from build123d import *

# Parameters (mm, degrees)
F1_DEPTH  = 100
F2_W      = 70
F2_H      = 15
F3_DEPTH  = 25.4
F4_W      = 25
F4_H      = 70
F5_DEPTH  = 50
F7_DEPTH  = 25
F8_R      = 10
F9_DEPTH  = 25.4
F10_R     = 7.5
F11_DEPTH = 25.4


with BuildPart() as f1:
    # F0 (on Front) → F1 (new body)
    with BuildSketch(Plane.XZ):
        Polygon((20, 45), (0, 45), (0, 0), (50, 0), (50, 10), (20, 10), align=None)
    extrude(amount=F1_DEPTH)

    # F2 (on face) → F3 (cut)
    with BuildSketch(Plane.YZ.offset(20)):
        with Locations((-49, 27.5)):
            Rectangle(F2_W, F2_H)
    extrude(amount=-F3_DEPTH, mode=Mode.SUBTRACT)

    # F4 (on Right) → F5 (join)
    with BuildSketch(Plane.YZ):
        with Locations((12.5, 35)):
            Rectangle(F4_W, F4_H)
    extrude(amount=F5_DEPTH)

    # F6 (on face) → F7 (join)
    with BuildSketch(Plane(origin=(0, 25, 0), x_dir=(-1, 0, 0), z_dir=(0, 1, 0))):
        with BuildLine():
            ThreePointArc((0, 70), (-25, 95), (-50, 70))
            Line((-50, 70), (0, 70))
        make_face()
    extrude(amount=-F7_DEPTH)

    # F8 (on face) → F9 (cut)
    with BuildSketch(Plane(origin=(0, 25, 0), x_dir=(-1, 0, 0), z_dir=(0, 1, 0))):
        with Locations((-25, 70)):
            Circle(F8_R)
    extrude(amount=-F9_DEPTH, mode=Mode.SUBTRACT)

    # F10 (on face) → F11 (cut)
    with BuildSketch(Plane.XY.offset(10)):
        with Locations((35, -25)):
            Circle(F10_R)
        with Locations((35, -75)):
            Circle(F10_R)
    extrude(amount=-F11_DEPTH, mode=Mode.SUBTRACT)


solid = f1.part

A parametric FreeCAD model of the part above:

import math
import FreeCAD as App
import Part
import Sketcher

V = App.Vector
Q = App.Units.Quantity

doc = App.newDocument("Part")
params = doc.addObject("Spreadsheet::Sheet", "Params")
for row, (alias, value) in enumerate([
    ("sketch1_width", "20 mm"),
    ("sketch1_width2", "50 mm"),
    ("sketch1_height", "45 mm"),
    ("sketch1_height2", "10 mm"),
    ("pad1_length", "100 mm"),
    ("sketch2_width", "70 mm"),
    ("sketch2_height", "15 mm"),
    ("pocket1_length", "25.4 mm"),
    ("sketch3_width", "25 mm"),
    ("sketch3_height", "70 mm"),
    ("pad2_length", "50 mm"),
    ("sketch4_radius", "25 mm"),
    ("pad3_length", "25 mm"),
    ("sketch5_diameter", "20 mm"),
    ("pocket2_length", "25.4 mm"),
    ("sketch6_diameter", "15 mm"),
    ("pocket3_length", "25.4 mm"),
], start=1):
    params.set(f"A{row}", alias)
    params.set(f"B{row}", "=" + value)
    params.setAlias(f"B{row}", alias)

body = doc.addObject("PartDesign::Body", "Body")

# Sketch on XZ plane
sketch1 = body.newObject("Sketcher::SketchObject", "Sketch")
sketch1.AttachmentSupport = (doc.getObject("XZ_Plane"), [""])
sketch1.MapMode = "FlatFace"
sketch1.addGeometry(Part.LineSegment(V(20, 45, 0), V(0, 45, 0)), False)
sketch1.addGeometry(Part.LineSegment(V(0, 45, 0), V(0, 0, 0)), False)
sketch1.addGeometry(Part.LineSegment(V(0, 0, 0), V(50, 0, 0)), False)
sketch1.addGeometry(Part.LineSegment(V(50, 0, 0), V(50, 10, 0)), False)
sketch1.addGeometry(Part.LineSegment(V(50, 10, 0), V(20, 10, 0)), False)
sketch1.addGeometry(Part.LineSegment(V(20, 10, 0), V(20, 45, 0)), False)
sketch1.addConstraint(Sketcher.Constraint("Coincident", 0, 2, 1, 1))
sketch1.addConstraint(Sketcher.Constraint("Coincident", 1, 2, 2, 1))
sketch1.addConstraint(Sketcher.Constraint("Coincident", 2, 2, 3, 1))
sketch1.addConstraint(Sketcher.Constraint("Coincident", 3, 2, 4, 1))
sketch1.addConstraint(Sketcher.Constraint("Coincident", 4, 2, 5, 1))
sketch1.addConstraint(Sketcher.Constraint("Coincident", 5, 2, 0, 1))
sketch1.addConstraint(Sketcher.Constraint("Horizontal", 0))
sketch1.addConstraint(Sketcher.Constraint("Vertical", 1))
sketch1.addConstraint(Sketcher.Constraint("Horizontal", 2))
sketch1.addConstraint(Sketcher.Constraint("Vertical", 3))
sketch1.addConstraint(Sketcher.Constraint("Horizontal", 4))
sketch1.addConstraint(Sketcher.Constraint("Vertical", 5))
sketch1.addConstraint(Sketcher.Constraint("Coincident", 1, 2, -1, 1))
sketch1.addConstraint(Sketcher.Constraint("DistanceX", 0, 2, 0, 1, Q("20 mm")))
sketch1.addConstraint(Sketcher.Constraint("DistanceX", 2, 1, 2, 2, Q("50 mm")))
sketch1.addConstraint(Sketcher.Constraint("DistanceY", 1, 2, 1, 1, Q("45 mm")))
sketch1.addConstraint(Sketcher.Constraint("DistanceY", 3, 1, 3, 2, Q("10 mm")))
sketch1.setExpression("Constraints[13]", "Params.sketch1_width")
sketch1.setExpression("Constraints[14]", "Params.sketch1_width2")
sketch1.setExpression("Constraints[15]", "Params.sketch1_height")
sketch1.setExpression("Constraints[16]", "Params.sketch1_height2")
pad1 = body.newObject("PartDesign::Pad", "Pad")
pad1.Profile = sketch1
pad1.setExpression("Length", "Params.pad1_length")

# Sketch on YZ plane
sketch2 = body.newObject("Sketcher::SketchObject", "Sketch001")
sketch2.AttachmentSupport = (doc.getObject("YZ_Plane"), [""])
sketch2.MapMode = "FlatFace"
sketch2.AttachmentOffset = App.Placement(V(0, 0, 20), App.Rotation())
sketch2.addGeometry(Part.LineSegment(V(-84, 35, 0), V(-84, 20, 0)), False)
sketch2.addGeometry(Part.LineSegment(V(-84, 20, 0), V(-14, 20, 0)), False)
sketch2.addGeometry(Part.LineSegment(V(-14, 20, 0), V(-14, 35, 0)), False)
sketch2.addGeometry(Part.LineSegment(V(-14, 35, 0), V(-84, 35, 0)), False)
sketch2.addConstraint(Sketcher.Constraint("Coincident", 0, 2, 1, 1))
sketch2.addConstraint(Sketcher.Constraint("Coincident", 1, 2, 2, 1))
sketch2.addConstraint(Sketcher.Constraint("Coincident", 2, 2, 3, 1))
sketch2.addConstraint(Sketcher.Constraint("Coincident", 3, 2, 0, 1))
sketch2.addConstraint(Sketcher.Constraint("Vertical", 0))
sketch2.addConstraint(Sketcher.Constraint("Horizontal", 1))
sketch2.addConstraint(Sketcher.Constraint("Vertical", 2))
sketch2.addConstraint(Sketcher.Constraint("Horizontal", 3))
sketch2.addConstraint(Sketcher.Constraint("DistanceX", 1, 1, 1, 2, Q("70 mm")))
sketch2.addConstraint(Sketcher.Constraint("DistanceY", 0, 2, 0, 1, Q("15 mm")))
sketch2.addConstraint(Sketcher.Constraint("DistanceX", 0, 2, -1, 1, Q("84 mm")))
sketch2.addConstraint(Sketcher.Constraint("DistanceY", -1, 1, 0, 2, Q("20 mm")))
sketch2.setExpression("Constraints[8]", "Params.sketch2_width")
sketch2.setExpression("Constraints[9]", "Params.sketch2_height")
pocket1 = body.newObject("PartDesign::Pocket", "Pocket")
pocket1.Profile = sketch2
pocket1.setExpression("Length", "Params.pocket1_length")

# Sketch on YZ plane
sketch3 = body.newObject("Sketcher::SketchObject", "Sketch002")
sketch3.AttachmentSupport = (doc.getObject("YZ_Plane"), [""])
sketch3.MapMode = "FlatFace"
sketch3.addGeometry(Part.LineSegment(V(0, 70, 0), V(0, 0, 0)), False)
sketch3.addGeometry(Part.LineSegment(V(0, 0, 0), V(25, 0, 0)), False)
sketch3.addGeometry(Part.LineSegment(V(25, 0, 0), V(25, 70, 0)), False)
sketch3.addGeometry(Part.LineSegment(V(25, 70, 0), V(0, 70, 0)), False)
sketch3.addConstraint(Sketcher.Constraint("Coincident", 0, 2, 1, 1))
sketch3.addConstraint(Sketcher.Constraint("Coincident", 1, 2, 2, 1))
sketch3.addConstraint(Sketcher.Constraint("Coincident", 2, 2, 3, 1))
sketch3.addConstraint(Sketcher.Constraint("Coincident", 3, 2, 0, 1))
sketch3.addConstraint(Sketcher.Constraint("Vertical", 0))
sketch3.addConstraint(Sketcher.Constraint("Horizontal", 1))
sketch3.addConstraint(Sketcher.Constraint("Vertical", 2))
sketch3.addConstraint(Sketcher.Constraint("Horizontal", 3))
sketch3.addConstraint(Sketcher.Constraint("Coincident", 0, 2, -1, 1))
sketch3.addConstraint(Sketcher.Constraint("DistanceX", 1, 1, 1, 2, Q("25 mm")))
sketch3.addConstraint(Sketcher.Constraint("DistanceY", 0, 2, 0, 1, Q("70 mm")))
sketch3.setExpression("Constraints[9]", "Params.sketch3_width")
sketch3.setExpression("Constraints[10]", "Params.sketch3_height")
pad2 = body.newObject("PartDesign::Pad", "Pad001")
pad2.Profile = sketch3
pad2.setExpression("Length", "Params.pad2_length")

# Sketch on XZ plane
sketch4 = body.newObject("Sketcher::SketchObject", "Sketch003")
sketch4.AttachmentSupport = (doc.getObject("XZ_Plane"), [""])
sketch4.MapMode = "FlatFace"
sketch4.AttachmentOffset = App.Placement(V(0, 0, -25), App.Rotation())
sketch4.addGeometry(Part.ArcOfCircle(Part.Circle(V(25, 70, 0), V(0, 0, 1), 25), math.radians(0), math.radians(180)), False)
sketch4.addGeometry(Part.LineSegment(V(50, 70, 0), V(0, 70, 0)), False)
sketch4.addConstraint(Sketcher.Constraint("Coincident", 0, 1, 1, 1))
sketch4.addConstraint(Sketcher.Constraint("Coincident", 1, 2, 0, 2))
sketch4.addConstraint(Sketcher.Constraint("Horizontal", 1))
sketch4.addConstraint(Sketcher.Constraint("PointOnObject", 1, 2, -2))
sketch4.addConstraint(Sketcher.Constraint("Radius", 0, Q("25 mm")))
sketch4.addConstraint(Sketcher.Constraint("DistanceY", -1, 1, 0, 3, Q("70 mm")))
sketch4.addConstraint(Sketcher.Constraint("DistanceY", -1, 1, 0, 1, Q("70 mm")))
sketch4.setExpression("Constraints[4]", "Params.sketch4_radius")
pad3 = body.newObject("PartDesign::Pad", "Pad002")
pad3.Profile = sketch4
pad3.setExpression("Length", "Params.pad3_length")

# Sketch on XZ plane
sketch5 = body.newObject("Sketcher::SketchObject", "Sketch004")
sketch5.AttachmentSupport = (doc.getObject("XZ_Plane"), [""])
sketch5.MapMode = "FlatFace"
sketch5.AttachmentOffset = App.Placement(V(0, 0, -25), App.Rotation())
sketch5.addGeometry(Part.Circle(V(25, 70, 0), V(0, 0, 1), 10), False)
sketch5.addConstraint(Sketcher.Constraint("Diameter", 0, Q("20 mm")))
sketch5.addConstraint(Sketcher.Constraint("DistanceX", -1, 1, 0, 3, Q("25 mm")))
sketch5.addConstraint(Sketcher.Constraint("DistanceY", -1, 1, 0, 3, Q("70 mm")))
sketch5.setExpression("Constraints[0]", "Params.sketch5_diameter")
pocket2 = body.newObject("PartDesign::Pocket", "Pocket001")
pocket2.Profile = sketch5
pocket2.setExpression("Length", "Params.pocket2_length")
pocket2.Reversed = True

# Sketch on XY plane
sketch6 = body.newObject("Sketcher::SketchObject", "Sketch005")
sketch6.AttachmentSupport = (doc.getObject("XY_Plane"), [""])
sketch6.MapMode = "FlatFace"
sketch6.AttachmentOffset = App.Placement(V(0, 0, 10), App.Rotation())
sketch6.addGeometry(Part.Circle(V(35, -25, 0), V(0, 0, 1), 7.5), False)
sketch6.addGeometry(Part.Circle(V(35, -75, 0), V(0, 0, 1), 7.5), False)
sketch6.addConstraint(Sketcher.Constraint("Equal", 0, 1))
sketch6.addConstraint(Sketcher.Constraint("Vertical", 0, 3, 1, 3))
sketch6.addConstraint(Sketcher.Constraint("Diameter", 0, Q("15 mm")))
sketch6.addConstraint(Sketcher.Constraint("DistanceX", -1, 1, 0, 3, Q("35 mm")))
sketch6.addConstraint(Sketcher.Constraint("DistanceY", 0, 3, -1, 1, Q("25 mm")))
sketch6.addConstraint(Sketcher.Constraint("DistanceY", 1, 3, -1, 1, Q("75 mm")))
sketch6.setExpression("Constraints[2]", "Params.sketch6_diameter")
pocket3 = body.newObject("PartDesign::Pocket", "Pocket002")
pocket3.Profile = sketch6
pocket3.setExpression("Length", "Params.pocket3_length")

doc.recompute()
